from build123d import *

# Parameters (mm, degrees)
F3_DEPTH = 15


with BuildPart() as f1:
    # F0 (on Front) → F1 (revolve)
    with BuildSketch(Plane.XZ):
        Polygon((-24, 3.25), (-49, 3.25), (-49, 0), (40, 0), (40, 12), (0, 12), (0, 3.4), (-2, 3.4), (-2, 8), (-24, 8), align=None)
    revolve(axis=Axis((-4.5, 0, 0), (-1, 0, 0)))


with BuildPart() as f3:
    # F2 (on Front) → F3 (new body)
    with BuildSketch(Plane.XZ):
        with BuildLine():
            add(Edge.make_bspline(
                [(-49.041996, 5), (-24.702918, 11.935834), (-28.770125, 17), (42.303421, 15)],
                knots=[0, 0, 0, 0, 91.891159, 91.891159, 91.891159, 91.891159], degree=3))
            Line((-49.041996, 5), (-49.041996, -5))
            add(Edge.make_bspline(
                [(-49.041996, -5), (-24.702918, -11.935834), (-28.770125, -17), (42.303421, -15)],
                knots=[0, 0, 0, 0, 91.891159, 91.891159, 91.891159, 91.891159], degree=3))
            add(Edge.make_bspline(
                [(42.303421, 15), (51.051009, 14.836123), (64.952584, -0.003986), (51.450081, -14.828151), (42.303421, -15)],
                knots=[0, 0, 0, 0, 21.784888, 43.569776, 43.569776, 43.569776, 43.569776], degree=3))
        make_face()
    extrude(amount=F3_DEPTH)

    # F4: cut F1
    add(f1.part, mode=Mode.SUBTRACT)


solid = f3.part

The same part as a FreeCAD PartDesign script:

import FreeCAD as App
import Part
import Sketcher
from FreeCAD import Vector
Q = App.Units.Quantity

doc = App.newDocument("Part")
body = doc.addObject("PartDesign::Body", "Body")

# Sketch on XZ plane
sketch1 = body.newObject("Sketcher::SketchObject", "Sketch")
sketch1.AttachmentSupport = (doc.getObject("XZ_Plane"), [""])
sketch1.MapMode = "FlatFace"
sketch1.addGeometry(Part.LineSegment(Vector(-24, 3.2, 0), Vector(-49, 3.2, 0)), False)
sketch1.addGeometry(Part.LineSegment(Vector(-49, 3.2, 0), Vector(-49, 0, 0)), False)
sketch1.addGeometry(Part.LineSegment(Vector(-49, 0, 0), Vector(40, 0, 0)), False)
sketch1.addGeometry(Part.LineSegment(Vector(40, 0, 0), Vector(40, 12, 0)), False)
sketch1.addGeometry(Part.LineSegment(Vector(40, 12, 0), Vector(0, 12, 0)), False)
sketch1.addGeometry(Part.LineSegment(Vector(0, 12, 0), Vector(0, 3.4, 0)), False)
sketch1.addGeometry(Part.LineSegment(Vector(0, 3.4, 0), Vector(-2, 3.4, 0)), False)
sketch1.addGeometry(Part.LineSegment(Vector(-2, 3.4, 0), Vector(-2, 8, 0)), False)
sketch1.addGeometry(Part.LineSegment(Vector(-2, 8, 0), Vector(-24, 8, 0)), False)
sketch1.addGeometry(Part.LineSegment(Vector(-24, 8, 0), Vector(-24, 3.2, 0)), False)
sketch1.addConstraint(Sketcher.Constraint("Coincident", 0, 2, 1, 1))
sketch1.addConstraint(Sketcher.Constraint("Coincident", 1, 2, 2, 1))
sketch1.addConstraint(Sketcher.Constraint("Coincident", 2, 2, 3, 1))
sketch1.addConstraint(Sketcher.Constraint("Coincident", 3, 2, 4, 1))
sketch1.addConstraint(Sketcher.Constraint("Coincident", 4, 2, 5, 1))
sketch1.addConstraint(Sketcher.Constraint("Coincident", 5, 2, 6, 1))
sketch1.addConstraint(Sketcher.Constraint("Coincident", 6, 2, 7, 1))
sketch1.addConstraint(Sketcher.Constraint("Coincident", 7, 2, 8, 1))
sketch1.addConstraint(Sketcher.Constraint("Coincident", 8, 2, 9, 1))
sketch1.addConstraint(Sketcher.Constraint("Coincident", 9, 2, 0, 1))
sketch1.addConstraint(Sketcher.Constraint("Horizontal", 0))
sketch1.addConstraint(Sketcher.Constraint("Vertical", 1))
sketch1.addConstraint(Sketcher.Constraint("Horizontal", 2))
sketch1.addConstraint(Sketcher.Constraint("Vertical", 3))
sketch1.addConstraint(Sketcher.Constraint("Horizontal", 4))
sketch1.addConstraint(Sketcher.Constraint("Vertical", 5))
sketch1.addConstraint(Sketcher.Constraint("Horizontal", 6))
sketch1.addConstraint(Sketcher.Constraint("Vertical", 7))
sketch1.addConstraint(Sketcher.Constraint("Horizontal", 8))
sketch1.addConstraint(Sketcher.Constraint("Vertical", 9))
sketch1.addConstraint(Sketcher.Constraint("PointOnObject", 1, 2, -1))
sketch1.addConstraint(Sketcher.Constraint("PointOnObject", 4, 2, -2))
sketch1.addConstraint(Sketcher.Constraint("DistanceX", 0, 2, 0, 1, Q("25 mm")))
sketch1.addConstraint(Sketcher.Constraint("DistanceX", 2, 1, 2, 2, Q("89 mm")))
sketch1.addConstraint(Sketcher.Constraint("DistanceX", 4, 2, 4, 1, Q("40 mm")))
sketch1.addConstraint(Sketcher.Constraint("DistanceX", 6, 2, 6, 1, Q("2 mm")))
sketch1.addConstraint(Sketcher.Constraint("DistanceY", 3, 1, 3, 2, Q("12 mm")))
sketch1.addConstraint(Sketcher.Constraint("DistanceY", 5, 2, 5, 1, Q("8.6 mm")))
sketch1.addConstraint(Sketcher.Constraint("DistanceY", 7, 1, 7, 2, Q("4.6 mm")))
sketch1.addConstraint(Sketcher.Constraint("DistanceY", 1, 2, 1, 1, Q("3.25 mm")))
revolution = body.newObject("PartDesign::Revolution", "Revolution")
revolution.Profile = sketch1
revolution.ReferenceAxis = (sketch1, ["H_Axis"])
revolution.Angle = 360
body2 = doc.addObject("PartDesign::Body", "Body001")

# Sketch on XZ plane
sketch2 = body2.newObject("Sketcher::SketchObject", "Sketch001")
sketch2.AttachmentSupport = (doc.getObject("XZ_Plane001"), [""])
sketch2.MapMode = "FlatFace"
sketch2.addGeometry(Part.BSplineCurve([Vector(-49.041996, 5, 0), Vector(-24.702918, 11.935834, 0), Vector(-28.770125, 17, 0), Vector(42.303421, 15, 0)], [4, 4], [0, 91.891159], False, 3, [1, 1, 1, 1], False), False)
sketch2.addGeometry(Part.LineSegment(Vector(-49.041996, 5, 0), Vector(-49.041996, -5, 0)), False)
sketch2.addGeometry(Part.BSplineCurve([Vector(-49.041996, -5, 0), Vector(-24.702918, -11.935834, 0), Vector(-28.770125, -17, 0), Vector(42.303421, -15, 0)], [4, 4], [0, 91.891159], False, 3, [1, 1, 1, 1], False), False)
sketch2.addGeometry(Part.BSplineCurve([Vector(42.303421, 15, 0), Vector(51.051009, 14.836123, 0), Vector(64.952584, -0.003986, 0), Vector(51.450081, -14.828151, 0), Vector(42.303421, -15, 0)], [4, 1, 4], [0, 21.784888, 43.569776], False, 3, [1, 1, 1, 1, 1], False), False)
sketch2.addConstraint(Sketcher.Constraint("Block", 0))
sketch2.addConstraint(Sketcher.Constraint("Block", 2))
sketch2.addConstraint(Sketcher.Constraint("Block", 3))
sketch2.addConstraint(Sketcher.Constraint("Coincident", 0, 1, 1, 1))
sketch2.addConstraint(Sketcher.Constraint("Coincident", 1, 2, 2, 1))
pad1 = body2.newObject("PartDesign::Pad", "Pad")
pad1.Profile = sketch2
pad1.Length = 15
doc.recompute()

boolean = body2.newObject("PartDesign::Boolean", "Boolean")
boolean.Type = "Cut"
boolean.addObjects([body])

doc.recompute()
